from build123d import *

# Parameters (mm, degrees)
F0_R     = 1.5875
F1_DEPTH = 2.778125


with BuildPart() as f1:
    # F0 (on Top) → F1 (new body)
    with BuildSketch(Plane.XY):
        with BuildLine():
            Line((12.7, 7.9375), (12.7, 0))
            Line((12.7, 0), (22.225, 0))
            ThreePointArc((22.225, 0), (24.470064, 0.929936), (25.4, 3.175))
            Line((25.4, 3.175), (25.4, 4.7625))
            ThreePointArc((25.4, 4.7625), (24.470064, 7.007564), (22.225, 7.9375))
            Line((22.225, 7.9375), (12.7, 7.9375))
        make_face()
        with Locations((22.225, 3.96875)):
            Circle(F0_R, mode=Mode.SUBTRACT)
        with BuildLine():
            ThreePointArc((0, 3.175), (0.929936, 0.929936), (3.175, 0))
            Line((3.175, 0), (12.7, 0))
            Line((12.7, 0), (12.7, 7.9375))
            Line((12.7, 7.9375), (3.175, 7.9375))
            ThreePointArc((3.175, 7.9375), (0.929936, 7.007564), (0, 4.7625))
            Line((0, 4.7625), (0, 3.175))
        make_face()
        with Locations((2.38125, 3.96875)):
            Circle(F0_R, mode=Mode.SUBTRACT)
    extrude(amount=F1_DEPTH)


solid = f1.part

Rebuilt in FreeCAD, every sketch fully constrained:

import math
import FreeCAD as App
import Part
import Sketcher
Q = App.Units.Quantity

doc = App.newDocument("Part")
body = doc.addObject("PartDesign::Body", "Body")

# Sketch on XY plane
sketch1 = body.newObject("Sketcher::SketchObject", "Sketch")
sketch1.AttachmentSupport = (doc.getObject("XY_Plane"), [""])
sketch1.MapMode = "FlatFace"
sketch1.addGeometry([
    Part.LineSegment(App.Vector(22.2, 7.9, 0), App.Vector(3.2, 7.9, 0)),  # 0
    Part.ArcOfCircle(Part.Circle(App.Vector(3.2, 4.8, 0), App.Vector(0, 0, 1), 3.2), math.radians(90), math.radians(180)),  # 1
    Part.LineSegment(App.Vector(0, 4.8, 0), App.Vector(0, 3.2, 0)),  # 2
    Part.ArcOfCircle(Part.Circle(App.Vector(3.2, 3.2, 0), App.Vector(0, 0, 1), 3.2), math.radians(-180), math.radians(-90)),  # 3
    Part.LineSegment(App.Vector(3.2, 0, 0), App.Vector(22.2, 0, 0)),  # 4
    Part.ArcOfCircle(Part.Circle(App.Vector(22.2, 3.2, 0), App.Vector(0, 0, 1), 3.2), math.radians(-90), math.radians(0)),  # 5
    Part.LineSegment(App.Vector(25.4, 3.2, 0), App.Vector(25.4, 4.8, 0)),  # 6
    Part.ArcOfCircle(Part.Circle(App.Vector(22.2, 4.8, 0), App.Vector(0, 0, 1), 3.2), math.radians(0), math.radians(90)),  # 7
    Part.Circle(App.Vector(2.4, 4, 0), App.Vector(0, 0, 1), 1.6),  # 8
    Part.Circle(App.Vector(22.2, 4, 0), App.Vector(0, 0, 1), 1.6),  # 9
], False)
sketch1.addConstraint([
    Sketcher.Constraint("Tangent", 0, 2, 1, 1),
    Sketcher.Constraint("Tangent", 1, 2, 2, 1),
    Sketcher.Constraint("Tangent", 2, 2, 3, 1),
    Sketcher.Constraint("Tangent", 3, 2, 4, 1),
    Sketcher.Constraint("Tangent", 4, 2, 5, 1),
    Sketcher.Constraint("Tangent", 5, 2, 6, 1),
    Sketcher.Constraint("Tangent", 6, 2, 7, 1),
    Sketcher.Constraint("Tangent", 7, 2, 0, 1),
    Sketcher.Constraint("Horizontal", 0),
    Sketcher.Constraint("Vertical", 2),
    Sketcher.Constraint("Horizontal", 4),
    Sketcher.Constraint("Vertical", 6),
    Sketcher.Constraint("Equal", 1, 3),
    Sketcher.Constraint("Equal", 3, 5),
    Sketcher.Constraint("Equal", 5, 7),
    Sketcher.Constraint("Equal", 8, 9),
    Sketcher.Constraint("PointOnObject", 1, 2, -2),
    Sketcher.Constraint("PointOnObject", 3, 2, -1),
    Sketcher.Constraint("Horizontal", 8, 3, 9, 3),
    Sketcher.Constraint("Vertical", 7, 3, 9, 3),
    Sketcher.Constraint("Diameter", 8, Q("0.125 in")),
    Sketcher.Constraint("DistanceX", -1, 1, 5, 2, Q("1 in")),
    Sketcher.Constraint("Radius", 1, Q("0.125 in")),
    Sketcher.Constraint("DistanceY", 2, 2, 2, 1, Q("0.0625 in")),
    Sketcher.Constraint("DistanceX", -1, 1, 8, 3, Q("0.09375 in")),
    Sketcher.Constraint("DistanceY", -1, 1, 8, 3, Q("0.15625 in")),
])
pad1 = body.newObject("PartDesign::Pad", "Pad")
pad1.Profile = sketch1
pad1.Length = Q("0.109375 in")

doc.recompute()
